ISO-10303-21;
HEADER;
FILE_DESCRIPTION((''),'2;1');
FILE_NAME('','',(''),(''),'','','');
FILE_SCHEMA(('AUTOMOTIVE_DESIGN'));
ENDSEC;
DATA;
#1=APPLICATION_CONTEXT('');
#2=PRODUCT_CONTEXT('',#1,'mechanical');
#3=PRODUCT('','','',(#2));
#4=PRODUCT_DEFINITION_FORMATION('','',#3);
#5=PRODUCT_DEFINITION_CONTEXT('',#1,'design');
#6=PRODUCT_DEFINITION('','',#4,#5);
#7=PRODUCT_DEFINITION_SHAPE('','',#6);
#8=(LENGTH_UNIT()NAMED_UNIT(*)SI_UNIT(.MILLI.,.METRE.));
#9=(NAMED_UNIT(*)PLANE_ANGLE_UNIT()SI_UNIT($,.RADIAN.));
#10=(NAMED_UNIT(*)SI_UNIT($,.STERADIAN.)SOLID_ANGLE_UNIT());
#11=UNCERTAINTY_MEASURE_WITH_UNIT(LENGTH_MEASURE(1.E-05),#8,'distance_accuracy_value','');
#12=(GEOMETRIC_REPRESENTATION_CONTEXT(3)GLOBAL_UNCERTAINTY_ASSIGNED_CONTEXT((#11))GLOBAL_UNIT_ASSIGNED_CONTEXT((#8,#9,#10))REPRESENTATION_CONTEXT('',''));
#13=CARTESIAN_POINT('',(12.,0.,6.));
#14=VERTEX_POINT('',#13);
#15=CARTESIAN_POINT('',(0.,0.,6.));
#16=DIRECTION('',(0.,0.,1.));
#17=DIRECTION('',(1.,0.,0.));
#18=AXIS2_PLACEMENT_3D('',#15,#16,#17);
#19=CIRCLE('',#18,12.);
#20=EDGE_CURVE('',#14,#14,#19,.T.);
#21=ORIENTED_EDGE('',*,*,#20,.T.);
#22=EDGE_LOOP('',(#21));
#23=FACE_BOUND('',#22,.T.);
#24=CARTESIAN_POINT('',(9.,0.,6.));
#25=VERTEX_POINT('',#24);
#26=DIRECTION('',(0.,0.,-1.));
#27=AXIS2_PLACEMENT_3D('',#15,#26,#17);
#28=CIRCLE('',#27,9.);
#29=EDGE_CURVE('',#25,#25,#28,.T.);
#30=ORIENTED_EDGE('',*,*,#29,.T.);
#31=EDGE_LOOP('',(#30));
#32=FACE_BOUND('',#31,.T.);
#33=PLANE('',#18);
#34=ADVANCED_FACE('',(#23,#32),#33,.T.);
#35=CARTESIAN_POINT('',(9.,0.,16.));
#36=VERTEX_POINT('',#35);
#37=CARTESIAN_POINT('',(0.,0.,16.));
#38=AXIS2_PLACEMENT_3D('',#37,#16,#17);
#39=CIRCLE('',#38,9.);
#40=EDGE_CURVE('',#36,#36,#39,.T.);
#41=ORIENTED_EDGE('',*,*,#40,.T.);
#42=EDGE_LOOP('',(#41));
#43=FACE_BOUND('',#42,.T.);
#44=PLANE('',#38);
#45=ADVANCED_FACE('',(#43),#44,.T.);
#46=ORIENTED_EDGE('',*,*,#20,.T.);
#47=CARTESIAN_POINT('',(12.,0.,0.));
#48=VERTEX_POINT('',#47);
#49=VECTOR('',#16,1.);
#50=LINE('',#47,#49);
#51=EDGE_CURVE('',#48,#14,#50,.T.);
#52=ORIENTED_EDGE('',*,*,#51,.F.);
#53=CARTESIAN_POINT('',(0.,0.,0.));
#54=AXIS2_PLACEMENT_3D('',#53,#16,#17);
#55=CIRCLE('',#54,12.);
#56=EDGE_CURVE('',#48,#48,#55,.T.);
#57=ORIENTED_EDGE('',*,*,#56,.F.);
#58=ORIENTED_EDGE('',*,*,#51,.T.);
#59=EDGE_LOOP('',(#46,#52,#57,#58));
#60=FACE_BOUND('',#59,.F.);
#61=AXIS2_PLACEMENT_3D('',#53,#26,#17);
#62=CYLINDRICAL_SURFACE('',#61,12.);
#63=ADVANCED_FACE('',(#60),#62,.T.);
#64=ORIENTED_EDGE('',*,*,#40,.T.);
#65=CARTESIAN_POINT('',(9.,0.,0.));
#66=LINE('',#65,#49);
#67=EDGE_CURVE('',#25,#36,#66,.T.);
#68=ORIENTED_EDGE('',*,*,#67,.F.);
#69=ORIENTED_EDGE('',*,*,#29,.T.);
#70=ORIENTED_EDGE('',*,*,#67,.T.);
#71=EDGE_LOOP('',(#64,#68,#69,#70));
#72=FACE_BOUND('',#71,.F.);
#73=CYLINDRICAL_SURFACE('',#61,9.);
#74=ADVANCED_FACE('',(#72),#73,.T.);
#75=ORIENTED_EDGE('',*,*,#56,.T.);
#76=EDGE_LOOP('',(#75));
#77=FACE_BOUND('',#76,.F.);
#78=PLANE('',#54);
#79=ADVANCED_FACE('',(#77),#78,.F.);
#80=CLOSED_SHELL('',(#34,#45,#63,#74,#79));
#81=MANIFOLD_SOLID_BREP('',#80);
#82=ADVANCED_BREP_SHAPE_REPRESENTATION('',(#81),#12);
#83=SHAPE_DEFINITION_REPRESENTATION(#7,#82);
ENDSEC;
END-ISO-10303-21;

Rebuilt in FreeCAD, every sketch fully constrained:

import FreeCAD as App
import Part
import Sketcher

doc = App.newDocument("Part")
params = doc.addObject("Spreadsheet::Sheet", "Params")
for row, (alias, value) in enumerate([
    ("sketch1_diameter", "24 mm"),
    ("pad1_length", "6 mm"),
    ("sketch2_diameter", "18 mm"),
    ("pad2_length", "16 mm"),
], start=1):
    params.set(f"A{row}", alias)
    params.set(f"B{row}", "=" + value)
    params.setAlias(f"B{row}", alias)

body = doc.addObject("PartDesign::Body", "Body")

sketch1 = doc.addObject("Sketcher::SketchObject", "Sketch")
body.addObject(sketch1)
sketch1.AttachmentSupport = (doc.XY_Plane, [""])
sketch1.MapMode = "FlatFace"
sketch1.addGeometry(Part.Circle(App.Vector(0, 0, 0), App.Vector(0, 0, 1), 12), False)
sketch1.addConstraint(Sketcher.Constraint("Coincident", 0, 3, -1, 1))
sketch1.addConstraint(Sketcher.Constraint("Diameter", 0, 24.0))
sketch1.setExpression("Constraints[1]", "Params.sketch1_diameter")
pad1 = doc.addObject("PartDesign::Pad", "Pad")
body.addObject(pad1)
pad1.Profile = sketch1
pad1.setExpression("Length", "Params.pad1_length")
body2 = doc.addObject("PartDesign::Body", "Body001")

sketch2 = doc.addObject("Sketcher::SketchObject", "Sketch001")
body2.addObject(sketch2)
sketch2.AttachmentSupport = (doc.getObject("XY_Plane001"), [""])
sketch2.MapMode = "FlatFace"
sketch2.addGeometry(Part.Circle(App.Vector(0, 0, 0), App.Vector(0, 0, 1), 9), False)
sketch2.addConstraint(Sketcher.Constraint("Coincident", 0, 3, -1, 1))
sketch2.addConstraint(Sketcher.Constraint("Diameter", 0, 18.0))
sketch2.setExpression("Constraints[1]", "Params.sketch2_diameter")
pad2 = doc.addObject("PartDesign::Pad", "Pad001")
body2.addObject(pad2)
pad2.Profile = sketch2
pad2.setExpression("Length", "Params.pad2_length")
doc.recompute()

boolean = doc.addObject("PartDesign::Boolean", "Boolean")
body2.addObject(boolean)
boolean.Type = "Fuse"
boolean.addObjects([body])

doc.recompute()
